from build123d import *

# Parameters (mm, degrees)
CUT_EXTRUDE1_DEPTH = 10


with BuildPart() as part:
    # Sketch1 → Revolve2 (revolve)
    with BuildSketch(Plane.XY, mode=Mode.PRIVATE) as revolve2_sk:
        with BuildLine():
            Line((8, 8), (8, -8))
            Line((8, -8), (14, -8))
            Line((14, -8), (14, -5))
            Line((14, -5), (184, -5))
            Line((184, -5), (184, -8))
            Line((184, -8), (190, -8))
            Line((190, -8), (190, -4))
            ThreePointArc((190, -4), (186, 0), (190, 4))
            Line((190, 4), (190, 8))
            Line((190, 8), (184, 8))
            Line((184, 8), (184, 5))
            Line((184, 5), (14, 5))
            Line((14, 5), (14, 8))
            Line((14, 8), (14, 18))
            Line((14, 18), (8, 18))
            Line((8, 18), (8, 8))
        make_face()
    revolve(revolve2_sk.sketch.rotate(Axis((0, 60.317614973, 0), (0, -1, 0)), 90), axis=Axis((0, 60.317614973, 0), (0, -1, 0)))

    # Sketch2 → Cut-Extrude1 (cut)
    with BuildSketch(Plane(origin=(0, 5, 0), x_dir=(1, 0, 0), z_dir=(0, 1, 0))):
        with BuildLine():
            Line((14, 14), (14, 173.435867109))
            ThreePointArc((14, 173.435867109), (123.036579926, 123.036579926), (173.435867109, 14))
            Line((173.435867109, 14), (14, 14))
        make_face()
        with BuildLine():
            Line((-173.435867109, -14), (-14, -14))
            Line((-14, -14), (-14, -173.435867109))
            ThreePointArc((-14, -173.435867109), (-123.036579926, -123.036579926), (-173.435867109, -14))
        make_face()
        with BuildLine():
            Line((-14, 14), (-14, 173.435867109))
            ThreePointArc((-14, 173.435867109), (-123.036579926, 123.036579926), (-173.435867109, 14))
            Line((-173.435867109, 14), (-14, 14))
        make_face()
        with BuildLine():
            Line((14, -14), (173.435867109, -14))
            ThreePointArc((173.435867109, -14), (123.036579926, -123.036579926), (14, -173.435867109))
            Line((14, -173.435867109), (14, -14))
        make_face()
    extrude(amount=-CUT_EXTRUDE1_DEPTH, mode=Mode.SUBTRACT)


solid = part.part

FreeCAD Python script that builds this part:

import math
import FreeCAD as App
import Part
import Sketcher

V = App.Vector

doc = App.newDocument("Part")
body = doc.addObject("PartDesign::Body", "Body")

# Sketch on XY plane
sketch1 = doc.addObject("Sketcher::SketchObject", "Sketch")
body.addObject(sketch1)
sketch1.AttachmentSupport = (doc.XY_Plane, [""])
sketch1.MapMode = "FlatFace"
sketch1.addGeometry(Part.LineSegment(V(8, -8, 0), V(14, -8, 0)), False)
sketch1.addGeometry(Part.LineSegment(V(14, -8, 0), V(14, -5, 0)), False)
sketch1.addGeometry(Part.LineSegment(V(14, -5, 0), V(184, -5, 0)), False)
sketch1.addGeometry(Part.LineSegment(V(184, -5, 0), V(184, -8, 0)), False)
sketch1.addGeometry(Part.LineSegment(V(184, -8, 0), V(190, -8, 0)), False)
sketch1.addGeometry(Part.LineSegment(V(190, -8, 0), V(190, -4, 0)), False)
sketch1.addGeometry(Part.ArcOfCircle(Part.Circle(V(190, 0, 0), V(0, 0, 1), 4), math.radians(90), math.radians(270)), False)
sketch1.addGeometry(Part.LineSegment(V(190, 4, 0), V(190, 8, 0)), False)
sketch1.addGeometry(Part.LineSegment(V(190, 8, 0), V(184, 8, 0)), False)
sketch1.addGeometry(Part.LineSegment(V(184, 8, 0), V(184, 5, 0)), False)
sketch1.addGeometry(Part.LineSegment(V(184, 5, 0), V(14, 5, 0)), False)
sketch1.addGeometry(Part.LineSegment(V(14, 5, 0), V(14, 18, 0)), False)
sketch1.addGeometry(Part.LineSegment(V(14, 18, 0), V(8, 18, 0)), False)
sketch1.addGeometry(Part.LineSegment(V(8, 18, 0), V(8, -8, 0)), False)
sketch1.addConstraint(Sketcher.Constraint("Coincident", 0, 2, 1, 1))
sketch1.addConstraint(Sketcher.Constraint("Coincident", 1, 2, 2, 1))
sketch1.addConstraint(Sketcher.Constraint("Coincident", 2, 2, 3, 1))
sketch1.addConstraint(Sketcher.Constraint("Coincident", 3, 2, 4, 1))
sketch1.addConstraint(Sketcher.Constraint("Coincident", 4, 2, 5, 1))
sketch1.addConstraint(Sketcher.Constraint("Coincident", 5, 2, 6, 2))
sketch1.addConstraint(Sketcher.Constraint("Coincident", 6, 1, 7, 1))
sketch1.addConstraint(Sketcher.Constraint("Coincident", 7, 2, 8, 1))
sketch1.addConstraint(Sketcher.Constraint("Coincident", 8, 2, 9, 1))
sketch1.addConstraint(Sketcher.Constraint("Coincident", 9, 2, 10, 1))
sketch1.addConstraint(Sketcher.Constraint("Coincident", 10, 2, 11, 1))
sketch1.addConstraint(Sketcher.Constraint("Coincident", 11, 2, 12, 1))
sketch1.addConstraint(Sketcher.Constraint("Coincident", 12, 2, 13, 1))
sketch1.addConstraint(Sketcher.Constraint("Coincident", 13, 2, 0, 1))
sketch1.addConstraint(Sketcher.Constraint("Horizontal", 0))
sketch1.addConstraint(Sketcher.Constraint("Vertical", 1))
sketch1.addConstraint(Sketcher.Constraint("Horizontal", 2))
sketch1.addConstraint(Sketcher.Constraint("Vertical", 3))
sketch1.addConstraint(Sketcher.Constraint("Horizontal", 4))
sketch1.addConstraint(Sketcher.Constraint("Vertical", 5))
sketch1.addConstraint(Sketcher.Constraint("Vertical", 7))
sketch1.addConstraint(Sketcher.Constraint("Horizontal", 8))
sketch1.addConstraint(Sketcher.Constraint("Vertical", 9))
sketch1.addConstraint(Sketcher.Constraint("Horizontal", 10))
sketch1.addConstraint(Sketcher.Constraint("Vertical", 11))
sketch1.addConstraint(Sketcher.Constraint("Horizontal", 12))
sketch1.addConstraint(Sketcher.Constraint("Vertical", 13))
sketch1.addConstraint(Sketcher.Constraint("Symmetric", 5, 2, 6, 1, -1))
sketch1.addConstraint(Sketcher.Constraint("Symmetric", 3, 2, 8, 2, -1))
sketch1.addConstraint(Sketcher.Constraint("Symmetric", 1, 2, 10, 2, -1))
sketch1.addConstraint(Sketcher.Constraint("Horizontal", 0, 2, 3, 2))
sketch1.addConstraint(Sketcher.Constraint("Vertical", 6, 3, 4, 2))
sketch1.addConstraint(Sketcher.Constraint("Equal", 0, 4))
sketch1.addConstraint(Sketcher.Constraint("Radius", 6, 4.0))
sketch1.addConstraint(Sketcher.Constraint("DistanceX", 0, 1, 0, 2, 6.0))
sketch1.addConstraint(Sketcher.Constraint("DistanceX", 2, 1, 2, 2, 170.0))
sketch1.addConstraint(Sketcher.Constraint("DistanceY", 1, 1, 1, 2, 3.0))
sketch1.addConstraint(Sketcher.Constraint("DistanceY", 5, 1, 5, 2, 4.0))
sketch1.addConstraint(Sketcher.Constraint("DistanceY", 11, 1, 11, 2, 13.0))
sketch1.addConstraint(Sketcher.Constraint("DistanceX", -1, 1, 6, 3, 190.0))
revolution = doc.addObject("PartDesign::Revolution", "Revolution")
body.addObject(revolution)
revolution.Profile = sketch1
revolution.ReferenceAxis = (sketch1, ["V_Axis"])
revolution.Angle = 360

# Sketch on XZ plane
sketch2 = doc.addObject("Sketcher::SketchObject", "Sketch001")
body.addObject(sketch2)
sketch2.AttachmentSupport = (doc.XZ_Plane, [""])
sketch2.MapMode = "FlatFace"
sketch2.AttachmentOffset = App.Placement(V(0, 0, -5), App.Rotation())
sketch2.addGeometry(Part.LineSegment(V(14, -173, 0), V(14, -14, 0)), False)
sketch2.addGeometry(Part.LineSegment(V(14, -14, 0), V(173, -14, 0)), False)
sketch2.addGeometry(Part.ArcOfCircle(Part.Circle(V(0, 0, 0), V(0, 0, 1), 174), math.radians(-85), math.radians(-5)), False)
sketch2.addGeometry(Part.LineSegment(V(-14, 14, 0), V(-173, 14, 0)), False)
sketch2.addGeometry(Part.ArcOfCircle(Part.Circle(V(0, 0, 0), V(0, 0, 1), 174), math.radians(95), math.radians(175)), False)
sketch2.addGeometry(Part.LineSegment(V(-14, 173, 0), V(-14, 14, 0)), False)
sketch2.addGeometry(Part.LineSegment(V(-14, -14, 0), V(-14, -173, 0)), False)
sketch2.addGeometry(Part.ArcOfCircle(Part.Circle(V(0, 0, 0), V(0, 0, 1), 174), math.radians(-175), math.radians(-95)), False)
sketch2.addGeometry(Part.LineSegment(V(-173, -14, 0), V(-14, -14, 0)), False)
sketch2.addGeometry(Part.LineSegment(V(173, 14, 0), V(14, 14, 0)), False)
sketch2.addGeometry(Part.LineSegment(V(14, 14, 0), V(14, 173, 0)), False)
sketch2.addGeometry(Part.ArcOfCircle(Part.Circle(V(0, 0, 0), V(0, 0, 1), 174), math.radians(5), math.radians(85)), False)
sketch2.addConstraint(Sketcher.Constraint("Coincident", 0, 2, 1, 1))
sketch2.addConstraint(Sketcher.Constraint("Coincident", 1, 2, 2, 2))
sketch2.addConstraint(Sketcher.Constraint("Coincident", 2, 1, 0, 1))
sketch2.addConstraint(Sketcher.Constraint("Coincident", 3, 2, 4, 2))
sketch2.addConstraint(Sketcher.Constraint("Coincident", 4, 1, 5, 1))
sketch2.addConstraint(Sketcher.Constraint("Coincident", 5, 2, 3, 1))
sketch2.addConstraint(Sketcher.Constraint("Coincident", 6, 2, 7, 2))
sketch2.addConstraint(Sketcher.Constraint("Coincident", 7, 1, 8, 1))
sketch2.addConstraint(Sketcher.Constraint("Coincident", 8, 2, 6, 1))
sketch2.addConstraint(Sketcher.Constraint("Coincident", 9, 2, 10, 1))
sketch2.addConstraint(Sketcher.Constraint("Coincident", 10, 2, 11, 2))
sketch2.addConstraint(Sketcher.Constraint("Coincident", 11, 1, 9, 1))
sketch2.addConstraint(Sketcher.Constraint("Vertical", 0))
sketch2.addConstraint(Sketcher.Constraint("Horizontal", 1))
sketch2.addConstraint(Sketcher.Constraint("Horizontal", 3))
sketch2.addConstraint(Sketcher.Constraint("Vertical", 5))
sketch2.addConstraint(Sketcher.Constraint("Vertical", 6))
sketch2.addConstraint(Sketcher.Constraint("Horizontal", 8))
sketch2.addConstraint(Sketcher.Constraint("Horizontal", 9))
sketch2.addConstraint(Sketcher.Constraint("Vertical", 10))
sketch2.addConstraint(Sketcher.Constraint("Coincident", 2, 3, -1, 1))
sketch2.addConstraint(Sketcher.Constraint("Coincident", 4, 3, -1, 1))
sketch2.addConstraint(Sketcher.Constraint("Coincident", 7, 3, -1, 1))
sketch2.addConstraint(Sketcher.Constraint("Coincident", 11, 3, -1, 1))
sketch2.addConstraint(Sketcher.Constraint("Equal", 2, 4))
sketch2.addConstraint(Sketcher.Constraint("Equal", 4, 7))
sketch2.addConstraint(Sketcher.Constraint("Equal", 7, 11))
sketch2.addConstraint(Sketcher.Constraint("Symmetric", 0, 2, 5, 2, -1, 1))
sketch2.addConstraint(Sketcher.Constraint("Symmetric", 8, 2, 9, 2, -1, 1))
sketch2.addConstraint(Sketcher.Constraint("Symmetric", 0, 2, 8, 2, -2))
sketch2.addConstraint(Sketcher.Constraint("Equal", 9, 0))
sketch2.addConstraint(Sketcher.Constraint("Radius", 2, 174.0))
sketch2.addConstraint(Sketcher.Constraint("DistanceX", -1, 1, 0, 2, 14.0))
pocket1 = doc.addObject("PartDesign::Pocket", "Pocket")
body.addObject(pocket1)
pocket1.Profile = sketch2
pocket1.Length = 10
pocket1.Reversed = True

doc.recompute()
